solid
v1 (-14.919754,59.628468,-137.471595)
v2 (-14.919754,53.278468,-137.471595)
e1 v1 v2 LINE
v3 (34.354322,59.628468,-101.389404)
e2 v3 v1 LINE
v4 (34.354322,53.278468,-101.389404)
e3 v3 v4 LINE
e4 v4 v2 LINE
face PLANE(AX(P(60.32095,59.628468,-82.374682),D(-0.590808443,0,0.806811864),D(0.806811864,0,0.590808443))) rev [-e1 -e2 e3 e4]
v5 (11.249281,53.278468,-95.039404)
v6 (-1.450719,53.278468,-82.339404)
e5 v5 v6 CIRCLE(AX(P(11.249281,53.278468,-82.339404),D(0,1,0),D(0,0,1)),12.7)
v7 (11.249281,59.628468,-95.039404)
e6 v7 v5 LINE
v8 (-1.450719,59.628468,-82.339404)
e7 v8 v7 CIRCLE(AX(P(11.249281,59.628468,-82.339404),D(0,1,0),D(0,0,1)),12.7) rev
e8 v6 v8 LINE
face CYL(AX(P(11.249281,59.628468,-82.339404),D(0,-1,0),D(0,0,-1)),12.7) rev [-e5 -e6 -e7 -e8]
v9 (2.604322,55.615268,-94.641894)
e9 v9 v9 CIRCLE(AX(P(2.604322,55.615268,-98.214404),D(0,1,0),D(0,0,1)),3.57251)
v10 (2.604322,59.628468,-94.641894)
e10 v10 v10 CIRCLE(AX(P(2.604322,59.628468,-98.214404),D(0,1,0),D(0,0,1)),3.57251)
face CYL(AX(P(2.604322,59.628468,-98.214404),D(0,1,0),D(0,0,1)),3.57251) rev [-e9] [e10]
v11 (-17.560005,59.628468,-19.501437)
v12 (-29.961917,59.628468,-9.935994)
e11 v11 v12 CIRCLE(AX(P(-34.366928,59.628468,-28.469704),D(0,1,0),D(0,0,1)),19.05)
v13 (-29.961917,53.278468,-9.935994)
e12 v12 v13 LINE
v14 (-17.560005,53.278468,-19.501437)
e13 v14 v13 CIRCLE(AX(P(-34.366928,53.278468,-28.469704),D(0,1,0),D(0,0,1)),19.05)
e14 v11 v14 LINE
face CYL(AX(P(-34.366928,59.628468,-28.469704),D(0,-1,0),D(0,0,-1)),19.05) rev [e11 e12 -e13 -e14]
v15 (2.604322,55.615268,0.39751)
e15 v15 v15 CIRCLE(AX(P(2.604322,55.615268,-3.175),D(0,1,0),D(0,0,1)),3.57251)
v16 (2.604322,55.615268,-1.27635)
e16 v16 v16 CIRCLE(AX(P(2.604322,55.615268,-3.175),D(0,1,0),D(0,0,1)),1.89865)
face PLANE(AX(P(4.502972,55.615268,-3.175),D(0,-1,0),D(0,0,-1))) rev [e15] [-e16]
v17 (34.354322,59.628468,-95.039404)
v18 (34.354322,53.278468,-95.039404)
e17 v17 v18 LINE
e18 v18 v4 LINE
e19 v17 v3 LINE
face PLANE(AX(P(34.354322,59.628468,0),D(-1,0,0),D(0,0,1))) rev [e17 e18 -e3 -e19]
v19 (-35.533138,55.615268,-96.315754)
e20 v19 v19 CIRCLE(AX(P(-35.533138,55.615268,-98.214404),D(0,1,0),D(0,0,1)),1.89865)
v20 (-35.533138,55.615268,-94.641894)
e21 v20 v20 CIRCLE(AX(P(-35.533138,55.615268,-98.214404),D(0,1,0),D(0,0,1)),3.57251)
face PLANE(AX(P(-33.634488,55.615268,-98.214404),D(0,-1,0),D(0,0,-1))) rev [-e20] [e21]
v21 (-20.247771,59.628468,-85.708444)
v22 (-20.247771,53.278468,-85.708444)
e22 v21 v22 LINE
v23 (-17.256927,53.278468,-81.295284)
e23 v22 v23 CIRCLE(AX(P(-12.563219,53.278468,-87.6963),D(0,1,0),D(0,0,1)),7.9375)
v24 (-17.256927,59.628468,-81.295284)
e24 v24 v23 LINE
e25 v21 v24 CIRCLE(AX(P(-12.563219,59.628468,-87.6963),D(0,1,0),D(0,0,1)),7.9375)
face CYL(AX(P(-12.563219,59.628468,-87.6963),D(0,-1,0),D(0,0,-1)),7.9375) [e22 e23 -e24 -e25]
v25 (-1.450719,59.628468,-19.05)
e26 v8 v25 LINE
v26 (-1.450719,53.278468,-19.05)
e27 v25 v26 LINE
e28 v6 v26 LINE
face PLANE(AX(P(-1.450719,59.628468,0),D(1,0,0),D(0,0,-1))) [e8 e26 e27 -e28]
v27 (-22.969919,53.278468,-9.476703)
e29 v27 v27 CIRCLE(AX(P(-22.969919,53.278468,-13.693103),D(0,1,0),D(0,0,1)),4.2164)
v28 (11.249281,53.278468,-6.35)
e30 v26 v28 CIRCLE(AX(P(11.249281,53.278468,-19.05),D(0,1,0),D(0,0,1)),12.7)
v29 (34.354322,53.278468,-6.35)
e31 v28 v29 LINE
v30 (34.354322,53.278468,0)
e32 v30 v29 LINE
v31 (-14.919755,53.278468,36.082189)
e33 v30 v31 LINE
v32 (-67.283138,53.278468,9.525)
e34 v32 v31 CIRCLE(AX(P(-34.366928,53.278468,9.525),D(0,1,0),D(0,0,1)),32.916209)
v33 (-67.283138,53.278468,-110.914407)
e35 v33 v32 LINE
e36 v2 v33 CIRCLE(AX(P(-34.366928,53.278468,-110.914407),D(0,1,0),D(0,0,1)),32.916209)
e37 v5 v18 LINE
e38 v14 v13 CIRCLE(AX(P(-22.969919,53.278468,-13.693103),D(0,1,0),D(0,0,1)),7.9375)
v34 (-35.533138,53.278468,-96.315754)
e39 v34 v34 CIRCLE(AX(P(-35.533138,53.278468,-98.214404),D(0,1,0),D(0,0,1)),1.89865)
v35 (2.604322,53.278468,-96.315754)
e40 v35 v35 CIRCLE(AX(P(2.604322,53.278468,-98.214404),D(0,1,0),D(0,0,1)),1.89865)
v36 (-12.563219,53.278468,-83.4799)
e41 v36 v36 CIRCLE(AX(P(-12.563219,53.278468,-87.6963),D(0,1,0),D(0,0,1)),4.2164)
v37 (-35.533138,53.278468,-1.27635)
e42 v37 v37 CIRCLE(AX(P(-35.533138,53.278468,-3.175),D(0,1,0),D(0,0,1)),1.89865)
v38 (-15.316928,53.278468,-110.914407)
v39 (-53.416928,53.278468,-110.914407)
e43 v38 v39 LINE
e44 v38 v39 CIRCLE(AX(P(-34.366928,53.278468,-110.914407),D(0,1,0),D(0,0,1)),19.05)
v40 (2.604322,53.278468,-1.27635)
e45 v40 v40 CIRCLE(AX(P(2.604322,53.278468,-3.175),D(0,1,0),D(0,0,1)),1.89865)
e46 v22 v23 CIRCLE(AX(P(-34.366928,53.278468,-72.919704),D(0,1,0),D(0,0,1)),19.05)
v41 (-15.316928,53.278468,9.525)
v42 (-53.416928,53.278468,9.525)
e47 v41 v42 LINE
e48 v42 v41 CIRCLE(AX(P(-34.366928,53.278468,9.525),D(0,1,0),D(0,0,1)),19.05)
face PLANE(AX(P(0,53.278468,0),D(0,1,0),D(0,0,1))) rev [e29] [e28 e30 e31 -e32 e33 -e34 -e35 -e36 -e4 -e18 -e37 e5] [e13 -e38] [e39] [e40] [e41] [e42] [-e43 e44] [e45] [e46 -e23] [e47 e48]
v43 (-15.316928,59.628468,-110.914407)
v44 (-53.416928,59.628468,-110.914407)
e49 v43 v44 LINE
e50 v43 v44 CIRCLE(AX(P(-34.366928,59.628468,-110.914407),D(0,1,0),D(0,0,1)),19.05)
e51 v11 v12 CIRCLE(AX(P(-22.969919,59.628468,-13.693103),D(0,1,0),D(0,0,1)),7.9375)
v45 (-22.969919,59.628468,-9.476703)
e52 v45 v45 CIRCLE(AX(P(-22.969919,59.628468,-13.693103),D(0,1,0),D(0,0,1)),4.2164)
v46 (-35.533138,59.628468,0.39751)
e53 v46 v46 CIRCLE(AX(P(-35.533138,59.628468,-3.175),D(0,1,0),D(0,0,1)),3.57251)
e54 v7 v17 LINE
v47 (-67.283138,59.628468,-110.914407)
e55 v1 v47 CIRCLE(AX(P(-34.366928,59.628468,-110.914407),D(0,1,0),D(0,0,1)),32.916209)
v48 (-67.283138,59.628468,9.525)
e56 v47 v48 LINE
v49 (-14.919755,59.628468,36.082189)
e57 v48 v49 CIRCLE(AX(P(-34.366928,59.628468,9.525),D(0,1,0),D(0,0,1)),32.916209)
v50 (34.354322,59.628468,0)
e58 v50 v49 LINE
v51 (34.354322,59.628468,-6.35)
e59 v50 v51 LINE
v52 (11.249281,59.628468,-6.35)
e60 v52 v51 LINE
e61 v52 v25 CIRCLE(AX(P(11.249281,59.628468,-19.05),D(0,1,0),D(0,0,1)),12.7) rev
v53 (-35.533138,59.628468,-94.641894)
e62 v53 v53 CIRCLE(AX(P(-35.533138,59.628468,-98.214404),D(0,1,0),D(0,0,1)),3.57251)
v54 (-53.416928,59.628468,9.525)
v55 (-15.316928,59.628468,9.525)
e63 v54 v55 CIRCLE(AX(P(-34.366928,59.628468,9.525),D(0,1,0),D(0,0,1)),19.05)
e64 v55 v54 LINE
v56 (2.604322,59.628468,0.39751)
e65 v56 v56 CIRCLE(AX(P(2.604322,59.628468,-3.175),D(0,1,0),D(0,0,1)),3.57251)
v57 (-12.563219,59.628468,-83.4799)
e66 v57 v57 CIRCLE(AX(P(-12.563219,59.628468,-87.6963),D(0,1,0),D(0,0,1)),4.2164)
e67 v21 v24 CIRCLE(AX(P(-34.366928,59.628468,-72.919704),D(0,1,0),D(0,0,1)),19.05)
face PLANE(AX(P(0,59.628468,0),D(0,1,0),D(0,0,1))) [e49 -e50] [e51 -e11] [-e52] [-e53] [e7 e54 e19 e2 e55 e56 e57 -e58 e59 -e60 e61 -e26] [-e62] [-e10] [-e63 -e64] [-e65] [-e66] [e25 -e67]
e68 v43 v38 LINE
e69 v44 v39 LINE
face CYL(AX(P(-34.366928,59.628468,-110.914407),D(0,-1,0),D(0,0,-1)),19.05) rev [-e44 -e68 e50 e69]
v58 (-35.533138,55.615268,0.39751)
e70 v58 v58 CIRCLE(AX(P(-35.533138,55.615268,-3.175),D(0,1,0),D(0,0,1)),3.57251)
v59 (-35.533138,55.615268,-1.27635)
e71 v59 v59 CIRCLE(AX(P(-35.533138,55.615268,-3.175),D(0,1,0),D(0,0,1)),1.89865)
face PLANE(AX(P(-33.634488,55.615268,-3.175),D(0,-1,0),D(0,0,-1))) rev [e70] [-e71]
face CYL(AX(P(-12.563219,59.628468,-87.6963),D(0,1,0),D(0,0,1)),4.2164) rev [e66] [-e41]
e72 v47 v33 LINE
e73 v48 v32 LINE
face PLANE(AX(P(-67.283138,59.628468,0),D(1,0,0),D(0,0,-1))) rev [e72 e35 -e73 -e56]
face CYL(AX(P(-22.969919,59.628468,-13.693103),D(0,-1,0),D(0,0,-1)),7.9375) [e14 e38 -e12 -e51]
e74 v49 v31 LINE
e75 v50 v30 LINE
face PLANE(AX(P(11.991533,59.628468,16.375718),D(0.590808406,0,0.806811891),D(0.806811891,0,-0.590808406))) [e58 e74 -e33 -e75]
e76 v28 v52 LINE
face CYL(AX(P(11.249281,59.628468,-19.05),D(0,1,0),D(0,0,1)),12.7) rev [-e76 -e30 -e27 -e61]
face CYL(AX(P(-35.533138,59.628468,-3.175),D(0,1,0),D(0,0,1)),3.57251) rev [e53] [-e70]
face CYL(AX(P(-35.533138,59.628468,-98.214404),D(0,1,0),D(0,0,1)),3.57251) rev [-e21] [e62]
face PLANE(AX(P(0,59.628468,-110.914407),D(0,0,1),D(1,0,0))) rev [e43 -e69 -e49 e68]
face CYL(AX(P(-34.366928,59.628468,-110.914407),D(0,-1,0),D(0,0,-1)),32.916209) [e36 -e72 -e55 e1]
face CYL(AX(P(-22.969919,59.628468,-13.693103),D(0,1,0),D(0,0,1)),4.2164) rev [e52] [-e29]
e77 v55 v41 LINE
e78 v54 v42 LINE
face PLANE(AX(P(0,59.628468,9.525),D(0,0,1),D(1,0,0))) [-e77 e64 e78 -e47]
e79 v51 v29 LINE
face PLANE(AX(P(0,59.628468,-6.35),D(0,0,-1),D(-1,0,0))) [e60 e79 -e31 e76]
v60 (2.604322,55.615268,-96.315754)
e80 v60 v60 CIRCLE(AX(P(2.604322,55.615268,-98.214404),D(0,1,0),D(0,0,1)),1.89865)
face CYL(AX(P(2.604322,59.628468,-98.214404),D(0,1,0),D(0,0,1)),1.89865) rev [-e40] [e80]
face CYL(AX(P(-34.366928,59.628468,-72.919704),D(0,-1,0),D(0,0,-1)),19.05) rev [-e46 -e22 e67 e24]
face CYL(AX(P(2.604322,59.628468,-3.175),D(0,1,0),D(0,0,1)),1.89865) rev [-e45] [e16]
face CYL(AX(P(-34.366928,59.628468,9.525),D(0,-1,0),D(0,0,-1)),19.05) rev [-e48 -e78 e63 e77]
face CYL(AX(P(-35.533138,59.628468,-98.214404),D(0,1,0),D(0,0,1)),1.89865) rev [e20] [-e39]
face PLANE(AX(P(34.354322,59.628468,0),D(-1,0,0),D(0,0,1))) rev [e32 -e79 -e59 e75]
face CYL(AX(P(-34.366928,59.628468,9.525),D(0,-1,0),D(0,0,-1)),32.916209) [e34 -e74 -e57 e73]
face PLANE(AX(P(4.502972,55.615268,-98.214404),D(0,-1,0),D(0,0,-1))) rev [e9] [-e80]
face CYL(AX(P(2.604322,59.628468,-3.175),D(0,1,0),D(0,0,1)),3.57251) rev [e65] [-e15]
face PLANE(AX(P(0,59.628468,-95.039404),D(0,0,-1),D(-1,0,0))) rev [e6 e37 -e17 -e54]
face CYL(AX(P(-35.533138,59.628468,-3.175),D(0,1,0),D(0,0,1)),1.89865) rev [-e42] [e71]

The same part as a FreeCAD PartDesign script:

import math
import FreeCAD as App
import Part
import Sketcher
Q = App.Units.Quantity


def edges_at(feature, points):
    """Names of the edges that pass closest to the given points."""
    edges = feature.Shape.Edges
    near = lambda p: min(range(len(edges)), key=lambda i: edges[i].distToShape(Part.Vertex(*p))[0])
    return sorted({f"Edge{near(p) + 1}" for p in points})

doc = App.newDocument("Part")
body = doc.addObject("PartDesign::Body", "Body")

sketch1 = body.newObject("Sketcher::SketchObject", "Sketch")
sketch1.AttachmentSupport = (doc.getObject("XZ_Plane"), [""])
sketch1.MapMode = "FlatFace"
sketch1.AttachmentOffset = App.Placement(App.Vector(0, 0, -53.278468), App.Rotation())
sketch1.addGeometry([
    Part.ArcOfCircle(Part.Circle(App.Vector(-34.366928, -110.914407, 0), App.Vector(0, 0, 1), 32.916209), math.radians(180), math.radians(306.214399)),
    Part.LineSegment(App.Vector(-67.283138, -110.914407, 0), App.Vector(-67.283138, 9.525, 0)),
    Part.ArcOfCircle(Part.Circle(App.Vector(-34.366928, 9.525, 0), App.Vector(0, 0, 1), 32.916209), math.radians(53.785604), math.radians(180)),
    Part.LineSegment(App.Vector(-14.919755, 36.082189, 0), App.Vector(34.354322, 0, 0)),
    Part.LineSegment(App.Vector(34.354322, 0, 0), App.Vector(34.354322, -6.35, 0)),
    Part.LineSegment(App.Vector(34.354322, -6.35, 0), App.Vector(-1.450719, -6.35, 0)),
    Part.LineSegment(App.Vector(-1.450719, -6.35, 0), App.Vector(-1.450719, -95.039404, 0)),
    Part.LineSegment(App.Vector(-1.450719, -95.039404, 0), App.Vector(34.354322, -95.039404, 0)),
    Part.LineSegment(App.Vector(34.354322, -95.039404, 0), App.Vector(34.354322, -101.389404, 0)),
    Part.LineSegment(App.Vector(34.354322, -101.389404, 0), App.Vector(-14.919754, -137.471595, 0)),
    Part.ArcOfCircle(Part.Circle(App.Vector(-34.366928, 9.525, 0), App.Vector(0, 0, 1), 19.05), math.radians(0), math.radians(180)),
    Part.LineSegment(App.Vector(-53.416928, 9.525, 0), App.Vector(-15.316928, 9.525, 0)),
    Part.ArcOfCircle(Part.Circle(App.Vector(-22.969919, -13.693103, 0), App.Vector(0, 0, 1), 7.9375), math.radians(151.748902), math.radians(312.965979)),
    Part.ArcOfCircle(Part.Circle(App.Vector(-34.366928, -28.469704, 0), App.Vector(0, 0, 1), 19.05), math.radians(76.630255), math.radians(388.084626)),
    Part.ArcOfCircle(Part.Circle(App.Vector(-12.563219, -87.6963, 0), App.Vector(0, 0, 1), 7.9375), math.radians(126.251677), math.radians(165.496534)),
    Part.ArcOfCircle(Part.Circle(App.Vector(-34.366928, -72.919704, 0), App.Vector(0, 0, 1), 19.05), math.radians(-26.082381), math.radians(317.830591)),
    Part.LineSegment(App.Vector(-15.316928, -110.914407, 0), App.Vector(-53.416928, -110.914407, 0)),
    Part.ArcOfCircle(Part.Circle(App.Vector(-34.366928, -110.914407, 0), App.Vector(0, 0, 1), 19.05), math.radians(180), math.radians(360)),
], False)
sketch1.addConstraint([
    Sketcher.Constraint("Tangent", 0, 1, 1, 1),
    Sketcher.Constraint("Tangent", 1, 2, 2, 2),
    Sketcher.Constraint("Tangent", 2, 1, 3, 1),
    Sketcher.Constraint("Coincident", 3, 2, 4, 1),
    Sketcher.Constraint("Coincident", 4, 2, 5, 1),
    Sketcher.Constraint("Coincident", 5, 2, 6, 1),
    Sketcher.Constraint("Coincident", 6, 2, 7, 1),
    Sketcher.Constraint("Coincident", 7, 2, 8, 1),
    Sketcher.Constraint("Coincident", 8, 2, 9, 1),
    Sketcher.Constraint("Tangent", 9, 2, 0, 2),
    Sketcher.Constraint("Coincident", 10, 1, 11, 2),
    Sketcher.Constraint("Coincident", 11, 1, 10, 2),
    Sketcher.Constraint("Coincident", 12, 1, 13, 1),
    Sketcher.Constraint("Coincident", 13, 2, 12, 2),
    Sketcher.Constraint("Coincident", 14, 1, 15, 1),
    Sketcher.Constraint("Coincident", 15, 2, 14, 2),
    Sketcher.Constraint("Coincident", 16, 1, 17, 2),
    Sketcher.Constraint("Coincident", 17, 1, 16, 2),
    Sketcher.Constraint("Vertical", 1),
    Sketcher.Constraint("Vertical", 4),
    Sketcher.Constraint("Horizontal", 5),
    Sketcher.Constraint("Vertical", 6),
    Sketcher.Constraint("Horizontal", 7),
    Sketcher.Constraint("Vertical", 8),
    Sketcher.Constraint("Horizontal", 11),
    Sketcher.Constraint("Horizontal", 16),
    Sketcher.Constraint("Coincident", 10, 3, 2, 3),
    Sketcher.Constraint("Coincident", 17, 3, 0, 3),
    Sketcher.Constraint("Equal", 0, 2),
    Sketcher.Constraint("Equal", 10, 13),
    Sketcher.Constraint("Equal", 12, 14),
    Sketcher.Constraint("Equal", 13, 15),
    Sketcher.Constraint("Equal", 15, 17),
    Sketcher.Constraint("PointOnObject", 3, 2, -1),
    Sketcher.Constraint("Horizontal", 1, 2, 10, 1),
    Sketcher.Constraint("Horizontal", 0, 1, 16, 1),
    Sketcher.Constraint("Vertical", 10, 3, 13, 3),
    Sketcher.Constraint("Vertical", 13, 3, 15, 3),
    Sketcher.Constraint("Vertical", 4, 2, 7, 2),
    Sketcher.Constraint("Vertical", 2, 1, 9, 2),
    Sketcher.Constraint("Equal", 4, 8),
    Sketcher.Constraint("Radius", 10, Q("0.75 in")),
    Sketcher.Constraint("Radius", 12, Q("0.3125 in")),
    Sketcher.Constraint("DistanceY", 4, 2, 4, 1, Q("0.25 in")),
    Sketcher.Constraint("DistanceY", 15, 3, 13, 3, Q("1.75 in")),
    Sketcher.Constraint("DistanceY", -1, 1, 2, 3, Q("0.375 in")),
    Sketcher.Constraint("Radius", 0, Q("32.916209 mm")),
    Sketcher.Constraint("DistanceX", 14, 3, 6, 2, Q("0.4375 in")),
    Sketcher.Constraint("DistanceX", 5, 2, 5, 1, Q("35.805041 mm")),
    Sketcher.Constraint("DistanceY", 14, 3, -1, 1, Q("87.6963 mm")),
    Sketcher.Constraint("DistanceY", 13, 3, 12, 3, Q("14.7766 mm")),
    Sketcher.Constraint("DistanceX", 12, 3, 14, 3, Q("10.4067 mm")),
    Sketcher.Constraint("DistanceY", 6, 2, 15, 3, Q("22.1197 mm")),
    Sketcher.Constraint("DistanceX", 12, 1, 12, 3, Q("6.991998 mm")),
    Sketcher.Constraint("DistanceX", 15, 3, 14, 1, Q("17.110002 mm")),
    Sketcher.Constraint("DistanceX", 0, 3, -1, 1, Q("34.366928 mm")),
])
pad1 = body.newObject("PartDesign::Pad", "Pad")
pad1.Profile = sketch1
pad1.Length = Q("0.25 in")
pad1.Reversed = True
doc.recompute()

fillet = body.newObject("PartDesign::Fillet", "Fillet")
fillet.Base = (pad1, edges_at(pad1, [(-1.451, 56.453, -6.35), (-1.451, 56.453, -95.039)]))
fillet.Radius = Q("0.5 in")

sketch2 = body.newObject("Sketcher::SketchObject", "Sketch001")
sketch2.AttachmentSupport = (doc.getObject("XZ_Plane"), [""])
sketch2.MapMode = "FlatFace"
sketch2.AttachmentOffset = App.Placement(App.Vector(0, 0, -59.628468), App.Rotation())
sketch2.addGeometry([
    Part.Circle(App.Vector(-22.969919, -13.693103, 0), App.Vector(0, 0, 1), 4.2164),
    Part.Circle(App.Vector(-12.563219, -87.6963, 0), App.Vector(0, 0, 1), 4.2164),
], False)
sketch2.addConstraint([
    Sketcher.Constraint("Equal", 0, 1),
    Sketcher.Constraint("Diameter", 0, Q("0.332 in")),
    Sketcher.Constraint("DistanceY", 1, 3, -1, 1, Q("87.6963 mm")),
    Sketcher.Constraint("DistanceX", 0, 3, 1, 3, Q("10.4067 mm")),
    Sketcher.Constraint("DistanceX", 0, 3, -1, 1, Q("22.969919 mm")),
    Sketcher.Constraint("DistanceY", 0, 3, -1, 1, Q("13.693103 mm")),
])
doc.recompute()
hole = body.newObject("PartDesign::Hole", "Hole")
hole.Profile = sketch2
hole.ThreadType = "None"
hole.Diameter = Q("0.332 in")
hole.DepthType = "ThroughAll"
hole.Reversed = True

sketch3 = body.newObject("Sketcher::SketchObject", "Sketch002")
sketch3.AttachmentSupport = (doc.getObject("XZ_Plane"), [""])
sketch3.MapMode = "FlatFace"
sketch3.AttachmentOffset = App.Placement(App.Vector(0, 0, -59.628468), App.Rotation())
sketch3.addGeometry([
    Part.Circle(App.Vector(2.604322, -3.175, 0), App.Vector(0, 0, 1), 1.89865),
    Part.Circle(App.Vector(-35.533138, -3.175, 0), App.Vector(0, 0, 1), 1.89865),
    Part.Circle(App.Vector(-35.533138, -98.214404, 0), App.Vector(0, 0, 1), 1.89865),
    Part.Circle(App.Vector(2.604322, -98.214404, 0), App.Vector(0, 0, 1), 1.89865),
], False)
sketch3.addConstraint([
    Sketcher.Constraint("Equal", 0, 1),
    Sketcher.Constraint("Equal", 1, 2),
    Sketcher.Constraint("Equal", 2, 3),
    Sketcher.Constraint("Horizontal", 0, 3, 1, 3),
    Sketcher.Constraint("Horizontal", 2, 3, 3, 3),
    Sketcher.Constraint("Vertical", 1, 3, 2, 3),
    Sketcher.Constraint("Vertical", 0, 3, 3, 3),
    Sketcher.Constraint("Diameter", 0, Q("0.1495 in")),
    Sketcher.Constraint("DistanceY", 0, 3, -1, 1, Q("0.125 in")),
    Sketcher.Constraint("DistanceX", 1, 3, 0, 3, Q("38.13746 mm")),
    Sketcher.Constraint("DistanceX", -1, 1, 0, 3, Q("2.604322 mm")),
    Sketcher.Constraint("DistanceY", 2, 3, -1, 1, Q("98.214404 mm")),
])
doc.recompute()
hole2 = body.newObject("PartDesign::Hole", "Hole001")
hole2.Profile = sketch3
hole2.ThreadType = "None"
hole2.Diameter = Q("0.1495 in")
hole2.DepthType = "ThroughAll"
hole2.HoleCutType = "Counterbore"
hole2.HoleCutDiameter = Q("0.2813 in")
hole2.HoleCutDepth = Q("0.158 in")
hole2.Reversed = True

doc.recompute()
